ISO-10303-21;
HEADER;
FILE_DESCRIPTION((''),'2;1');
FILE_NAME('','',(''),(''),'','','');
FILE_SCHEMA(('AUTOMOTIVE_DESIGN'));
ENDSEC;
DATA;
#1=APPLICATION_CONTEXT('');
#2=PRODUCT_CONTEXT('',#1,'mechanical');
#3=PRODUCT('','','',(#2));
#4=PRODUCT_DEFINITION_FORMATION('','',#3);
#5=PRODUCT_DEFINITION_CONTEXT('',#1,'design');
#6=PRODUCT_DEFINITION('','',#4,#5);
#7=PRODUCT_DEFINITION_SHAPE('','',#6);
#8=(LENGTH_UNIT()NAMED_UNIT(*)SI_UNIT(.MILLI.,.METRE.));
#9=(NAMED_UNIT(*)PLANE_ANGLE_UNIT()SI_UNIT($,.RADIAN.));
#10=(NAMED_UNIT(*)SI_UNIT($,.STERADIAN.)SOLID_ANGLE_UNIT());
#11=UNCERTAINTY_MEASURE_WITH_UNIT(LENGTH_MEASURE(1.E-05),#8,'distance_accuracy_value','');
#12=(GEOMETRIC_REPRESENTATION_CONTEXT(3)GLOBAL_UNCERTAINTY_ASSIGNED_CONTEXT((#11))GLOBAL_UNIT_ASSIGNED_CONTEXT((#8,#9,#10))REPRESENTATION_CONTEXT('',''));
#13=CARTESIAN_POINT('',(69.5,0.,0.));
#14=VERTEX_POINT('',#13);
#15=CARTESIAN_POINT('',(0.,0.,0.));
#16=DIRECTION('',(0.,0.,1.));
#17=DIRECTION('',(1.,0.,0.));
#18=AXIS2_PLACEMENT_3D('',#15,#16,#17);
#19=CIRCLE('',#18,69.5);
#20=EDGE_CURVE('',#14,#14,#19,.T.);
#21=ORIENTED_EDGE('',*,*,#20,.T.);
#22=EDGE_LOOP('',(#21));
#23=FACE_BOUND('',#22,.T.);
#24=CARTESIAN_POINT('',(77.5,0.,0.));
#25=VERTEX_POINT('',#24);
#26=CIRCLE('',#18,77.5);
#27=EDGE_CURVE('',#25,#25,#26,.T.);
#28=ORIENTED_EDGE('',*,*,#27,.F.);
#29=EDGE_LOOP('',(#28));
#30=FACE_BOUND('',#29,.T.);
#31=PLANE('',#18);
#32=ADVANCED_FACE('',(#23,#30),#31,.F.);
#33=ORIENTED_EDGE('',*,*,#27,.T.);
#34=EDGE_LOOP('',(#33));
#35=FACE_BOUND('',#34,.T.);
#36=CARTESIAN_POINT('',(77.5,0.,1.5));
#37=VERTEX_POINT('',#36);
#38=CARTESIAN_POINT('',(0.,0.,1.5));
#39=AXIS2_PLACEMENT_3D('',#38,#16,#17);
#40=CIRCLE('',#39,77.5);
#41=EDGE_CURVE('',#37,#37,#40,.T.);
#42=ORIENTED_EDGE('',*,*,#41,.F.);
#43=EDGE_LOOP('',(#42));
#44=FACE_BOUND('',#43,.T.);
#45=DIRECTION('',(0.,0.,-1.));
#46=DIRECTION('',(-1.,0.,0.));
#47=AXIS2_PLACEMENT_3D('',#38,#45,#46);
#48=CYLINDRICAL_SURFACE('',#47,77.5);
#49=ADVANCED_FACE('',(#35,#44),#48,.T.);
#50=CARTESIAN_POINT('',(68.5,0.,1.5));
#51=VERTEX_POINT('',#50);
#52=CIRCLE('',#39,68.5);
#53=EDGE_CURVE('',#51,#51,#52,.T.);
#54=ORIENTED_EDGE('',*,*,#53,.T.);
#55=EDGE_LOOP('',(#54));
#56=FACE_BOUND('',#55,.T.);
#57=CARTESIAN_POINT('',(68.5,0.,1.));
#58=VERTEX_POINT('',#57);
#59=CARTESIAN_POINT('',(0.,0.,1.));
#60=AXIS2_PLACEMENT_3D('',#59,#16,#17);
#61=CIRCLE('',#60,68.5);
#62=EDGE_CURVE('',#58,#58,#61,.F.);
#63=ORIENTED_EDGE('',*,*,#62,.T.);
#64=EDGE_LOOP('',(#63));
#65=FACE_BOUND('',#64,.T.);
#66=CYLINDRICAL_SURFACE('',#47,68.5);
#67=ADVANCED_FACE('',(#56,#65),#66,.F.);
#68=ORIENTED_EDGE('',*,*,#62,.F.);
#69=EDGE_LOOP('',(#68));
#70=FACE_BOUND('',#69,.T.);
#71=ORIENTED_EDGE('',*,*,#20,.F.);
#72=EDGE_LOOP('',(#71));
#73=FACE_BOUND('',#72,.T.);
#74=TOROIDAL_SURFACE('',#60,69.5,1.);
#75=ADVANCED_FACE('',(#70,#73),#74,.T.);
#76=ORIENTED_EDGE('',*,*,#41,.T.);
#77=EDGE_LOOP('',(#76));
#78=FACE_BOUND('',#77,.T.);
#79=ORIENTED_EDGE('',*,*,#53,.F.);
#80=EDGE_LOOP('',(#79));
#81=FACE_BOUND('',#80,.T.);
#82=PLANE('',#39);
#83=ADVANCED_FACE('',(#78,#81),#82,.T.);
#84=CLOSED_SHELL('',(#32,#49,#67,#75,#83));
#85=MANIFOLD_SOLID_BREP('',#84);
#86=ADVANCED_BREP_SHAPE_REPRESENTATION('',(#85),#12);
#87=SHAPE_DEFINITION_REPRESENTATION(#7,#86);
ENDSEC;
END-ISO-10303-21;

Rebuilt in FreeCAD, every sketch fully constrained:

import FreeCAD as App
import Part
import Sketcher

V = App.Vector


def edges_at(feature, points):
    """Names of the edges that pass closest to the given points."""
    edges = feature.Shape.Edges
    near = lambda p: min(range(len(edges)), key=lambda i: edges[i].distToShape(Part.Vertex(*p))[0])
    return sorted({f"Edge{near(p) + 1}" for p in points})

doc = App.newDocument("Part")
body = doc.addObject("PartDesign::Body", "Body")

sketch1 = body.newObject("Sketcher::SketchObject", "Sketch")
sketch1.AttachmentSupport = (doc.getObject("XY_Plane"), [""])
sketch1.MapMode = "FlatFace"
sketch1.addGeometry(Part.Circle(V(0, 0, 0), V(0, 0, 1), 77.5), False)
sketch1.addGeometry(Part.Circle(V(0, 0, 0), V(0, 0, 1), 68.5), False)
sketch1.addConstraint(Sketcher.Constraint("Coincident", 0, 3, -1, 1))
sketch1.addConstraint(Sketcher.Constraint("Coincident", 1, 3, -1, 1))
sketch1.addConstraint(Sketcher.Constraint("Diameter", 0, 155.0))
sketch1.addConstraint(Sketcher.Constraint("Diameter", 1, 137.0))
pad1 = body.newObject("PartDesign::Pad", "Pad")
pad1.Profile = sketch1
pad1.Length = 1.5
doc.recompute()

fillet = body.newObject("PartDesign::Fillet", "Fillet")
fillet.Base = (pad1, edges_at(pad1, [(-68.5, 0, 0)]))
fillet.Radius = 1

doc.recompute()
